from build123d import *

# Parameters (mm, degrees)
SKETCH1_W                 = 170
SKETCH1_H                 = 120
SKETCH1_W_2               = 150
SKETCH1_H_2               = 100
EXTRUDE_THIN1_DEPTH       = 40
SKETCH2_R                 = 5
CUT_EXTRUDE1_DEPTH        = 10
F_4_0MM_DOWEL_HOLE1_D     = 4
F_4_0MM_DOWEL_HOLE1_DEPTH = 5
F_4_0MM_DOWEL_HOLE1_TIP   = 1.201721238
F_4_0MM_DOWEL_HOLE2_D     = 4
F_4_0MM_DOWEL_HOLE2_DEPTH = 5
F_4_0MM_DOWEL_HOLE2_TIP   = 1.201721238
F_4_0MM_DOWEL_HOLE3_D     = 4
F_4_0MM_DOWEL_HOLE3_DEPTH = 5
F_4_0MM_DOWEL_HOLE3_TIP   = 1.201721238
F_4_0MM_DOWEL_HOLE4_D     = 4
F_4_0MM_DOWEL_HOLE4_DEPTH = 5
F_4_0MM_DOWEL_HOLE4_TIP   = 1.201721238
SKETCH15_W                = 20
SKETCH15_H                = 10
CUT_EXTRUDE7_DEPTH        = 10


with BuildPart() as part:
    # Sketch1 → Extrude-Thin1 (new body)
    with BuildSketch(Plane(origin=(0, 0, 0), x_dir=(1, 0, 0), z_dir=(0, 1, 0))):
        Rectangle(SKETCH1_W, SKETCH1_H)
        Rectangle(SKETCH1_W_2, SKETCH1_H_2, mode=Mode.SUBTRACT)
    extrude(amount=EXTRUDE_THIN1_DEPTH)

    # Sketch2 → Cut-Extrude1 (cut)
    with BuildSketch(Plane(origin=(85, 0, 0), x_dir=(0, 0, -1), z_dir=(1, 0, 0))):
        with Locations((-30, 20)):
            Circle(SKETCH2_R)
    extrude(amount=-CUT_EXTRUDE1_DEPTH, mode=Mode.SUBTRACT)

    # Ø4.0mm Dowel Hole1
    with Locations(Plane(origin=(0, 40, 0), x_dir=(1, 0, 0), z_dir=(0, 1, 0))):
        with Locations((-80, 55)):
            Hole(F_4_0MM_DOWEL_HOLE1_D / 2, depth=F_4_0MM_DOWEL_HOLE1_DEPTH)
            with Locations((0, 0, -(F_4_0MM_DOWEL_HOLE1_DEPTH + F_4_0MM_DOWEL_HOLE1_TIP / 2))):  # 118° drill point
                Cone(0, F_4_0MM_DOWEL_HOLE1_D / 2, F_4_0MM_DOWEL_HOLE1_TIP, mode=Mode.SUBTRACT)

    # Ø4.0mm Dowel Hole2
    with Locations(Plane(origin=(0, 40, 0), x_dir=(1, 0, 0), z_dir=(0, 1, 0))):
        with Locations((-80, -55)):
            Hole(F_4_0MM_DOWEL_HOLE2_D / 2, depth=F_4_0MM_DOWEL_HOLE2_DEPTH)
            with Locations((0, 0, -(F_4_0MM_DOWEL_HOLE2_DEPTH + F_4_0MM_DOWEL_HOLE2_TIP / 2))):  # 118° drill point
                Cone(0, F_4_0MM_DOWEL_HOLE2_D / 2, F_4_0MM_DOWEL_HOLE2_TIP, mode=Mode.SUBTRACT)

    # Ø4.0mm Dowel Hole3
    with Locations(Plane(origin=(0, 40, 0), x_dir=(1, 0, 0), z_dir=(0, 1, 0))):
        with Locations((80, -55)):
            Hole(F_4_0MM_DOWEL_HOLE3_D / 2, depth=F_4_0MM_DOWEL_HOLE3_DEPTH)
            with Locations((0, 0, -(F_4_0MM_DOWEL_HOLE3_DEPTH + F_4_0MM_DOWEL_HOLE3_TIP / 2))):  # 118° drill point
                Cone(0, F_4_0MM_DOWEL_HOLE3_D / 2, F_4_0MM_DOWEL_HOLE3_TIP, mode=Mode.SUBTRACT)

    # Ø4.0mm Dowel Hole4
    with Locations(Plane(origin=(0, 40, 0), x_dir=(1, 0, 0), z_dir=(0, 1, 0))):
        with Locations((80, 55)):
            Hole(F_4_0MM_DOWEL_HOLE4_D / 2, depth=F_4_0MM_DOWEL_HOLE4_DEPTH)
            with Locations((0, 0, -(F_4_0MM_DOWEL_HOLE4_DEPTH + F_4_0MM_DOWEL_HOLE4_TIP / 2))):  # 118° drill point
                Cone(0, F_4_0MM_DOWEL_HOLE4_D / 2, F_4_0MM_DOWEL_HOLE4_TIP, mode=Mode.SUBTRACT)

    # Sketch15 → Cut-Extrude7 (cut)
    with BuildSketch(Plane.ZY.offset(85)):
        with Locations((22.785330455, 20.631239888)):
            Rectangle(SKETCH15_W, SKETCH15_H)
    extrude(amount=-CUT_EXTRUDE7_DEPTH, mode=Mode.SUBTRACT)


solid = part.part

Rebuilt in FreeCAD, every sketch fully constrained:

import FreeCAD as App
import Part
import Sketcher
Q = App.Units.Quantity

doc = App.newDocument("Part")
body = doc.addObject("PartDesign::Body", "Body")

# Sketch on XZ plane
sketch1 = doc.addObject("Sketcher::SketchObject", "Sketch")
body.addObject(sketch1)
sketch1.AttachmentSupport = (doc.XZ_Plane, [""])
sketch1.MapMode = "FlatFace"
sketch1.addGeometry([
    Part.LineSegment(App.Vector(-85, -60, 0), App.Vector(-85, 60, 0)),  # 0
    Part.LineSegment(App.Vector(-85, 60, 0), App.Vector(85, 60, 0)),  # 1
    Part.LineSegment(App.Vector(85, 60, 0), App.Vector(85, -60, 0)),  # 2
    Part.LineSegment(App.Vector(85, -60, 0), App.Vector(-85, -60, 0)),  # 3
    Part.LineSegment(App.Vector(75, 50, 0), App.Vector(-75, 50, 0)),  # 4
    Part.LineSegment(App.Vector(-75, 50, 0), App.Vector(-75, -50, 0)),  # 5
    Part.LineSegment(App.Vector(-75, -50, 0), App.Vector(75, -50, 0)),  # 6
    Part.LineSegment(App.Vector(75, -50, 0), App.Vector(75, 50, 0)),  # 7
], False)
sketch1.addConstraint([
    Sketcher.Constraint("Coincident", 0, 2, 1, 1),
    Sketcher.Constraint("Coincident", 1, 2, 2, 1),
    Sketcher.Constraint("Coincident", 2, 2, 3, 1),
    Sketcher.Constraint("Coincident", 3, 2, 0, 1),
    Sketcher.Constraint("Coincident", 4, 2, 5, 1),
    Sketcher.Constraint("Coincident", 5, 2, 6, 1),
    Sketcher.Constraint("Coincident", 6, 2, 7, 1),
    Sketcher.Constraint("Coincident", 7, 2, 4, 1),
    Sketcher.Constraint("Vertical", 0),
    Sketcher.Constraint("Horizontal", 1),
    Sketcher.Constraint("Vertical", 2),
    Sketcher.Constraint("Horizontal", 3),
    Sketcher.Constraint("Horizontal", 4),
    Sketcher.Constraint("Vertical", 5),
    Sketcher.Constraint("Horizontal", 6),
    Sketcher.Constraint("Vertical", 7),
    Sketcher.Constraint("Symmetric", 0, 2, 2, 2, -1, 1),
    Sketcher.Constraint("Symmetric", 4, 2, 6, 2, -1, 1),
    Sketcher.Constraint("DistanceX", 1, 1, 1, 2, Q("170 mm")),
    Sketcher.Constraint("DistanceX", 4, 2, 4, 1, Q("150 mm")),
    Sketcher.Constraint("DistanceY", 0, 1, 0, 2, Q("120 mm")),
    Sketcher.Constraint("DistanceY", 5, 2, 5, 1, Q("100 mm")),
])
pad1 = doc.addObject("PartDesign::Pad", "Pad")
body.addObject(pad1)
pad1.Profile = sketch1
pad1.Length = 40
pad1.Reversed = True

# Sketch on YZ plane
sketch2 = doc.addObject("Sketcher::SketchObject", "Sketch001")
body.addObject(sketch2)
sketch2.AttachmentSupport = (doc.YZ_Plane, [""])
sketch2.MapMode = "FlatFace"
sketch2.AttachmentOffset = App.Placement(App.Vector(0, 0, 85), App.Rotation())
sketch2.addGeometry(Part.Circle(App.Vector(20, 30, 0), App.Vector(0, 0, 1), 5), False)
sketch2.addConstraint([
    Sketcher.Constraint("Diameter", 0, Q("10 mm")),
    Sketcher.Constraint("DistanceX", -1, 1, 0, 3, Q("20 mm")),
    Sketcher.Constraint("DistanceY", -1, 1, 0, 3, Q("30 mm")),
])
pocket1 = doc.addObject("PartDesign::Pocket", "Pocket")
body.addObject(pocket1)
pocket1.Profile = sketch2
pocket1.Length = 10

# Sketch on XZ plane
sketch3 = doc.addObject("Sketcher::SketchObject", "Sketch002")
body.addObject(sketch3)
sketch3.AttachmentSupport = (doc.XZ_Plane, [""])
sketch3.MapMode = "FlatFace"
sketch3.AttachmentOffset = App.Placement(App.Vector(0, 0, -40), App.Rotation())
sketch3.addGeometry(Part.Circle(App.Vector(-80, -55, 0), App.Vector(0, 0, 1), 2), False)
sketch3.addConstraint([
    Sketcher.Constraint("Diameter", 0, Q("4 mm")),
    Sketcher.Constraint("DistanceX", 0, 3, -1, 1, Q("80 mm")),
    Sketcher.Constraint("DistanceY", 0, 3, -1, 1, Q("55 mm")),
])
doc.recompute()
hole = doc.addObject("PartDesign::Hole", "Hole")
body.addObject(hole)
hole.Profile = sketch3
hole.ThreadType = "None"
hole.Diameter = 4
hole.DepthType = "Dimension"
hole.Depth = 5
hole.DrillPoint = "Angled"
hole.DrillPointAngle = 118
hole.Reversed = True

# Sketch on XZ plane
sketch4 = doc.addObject("Sketcher::SketchObject", "Sketch003")
body.addObject(sketch4)
sketch4.AttachmentSupport = (doc.XZ_Plane, [""])
sketch4.MapMode = "FlatFace"
sketch4.AttachmentOffset = App.Placement(App.Vector(0, 0, -40), App.Rotation())
sketch4.addGeometry(Part.Circle(App.Vector(-80, 55, 0), App.Vector(0, 0, 1), 2), False)
sketch4.addConstraint([
    Sketcher.Constraint("Diameter", 0, Q("4 mm")),
    Sketcher.Constraint("DistanceX", 0, 3, -1, 1, Q("80 mm")),
    Sketcher.Constraint("DistanceY", -1, 1, 0, 3, Q("55 mm")),
])
doc.recompute()
hole2 = doc.addObject("PartDesign::Hole", "Hole001")
body.addObject(hole2)
hole2.Profile = sketch4
hole2.ThreadType = "None"
hole2.Diameter = 4
hole2.DepthType = "Dimension"
hole2.Depth = 5
hole2.DrillPoint = "Angled"
hole2.DrillPointAngle = 118
hole2.Reversed = True

# Sketch on XZ plane
sketch5 = doc.addObject("Sketcher::SketchObject", "Sketch004")
body.addObject(sketch5)
sketch5.AttachmentSupport = (doc.XZ_Plane, [""])
sketch5.MapMode = "FlatFace"
sketch5.AttachmentOffset = App.Placement(App.Vector(0, 0, -40), App.Rotation())
sketch5.addGeometry(Part.Circle(App.Vector(80, 55, 0), App.Vector(0, 0, 1), 2), False)
sketch5.addConstraint([
    Sketcher.Constraint("Diameter", 0, Q("4 mm")),
    Sketcher.Constraint("DistanceX", -1, 1, 0, 3, Q("80 mm")),
    Sketcher.Constraint("DistanceY", -1, 1, 0, 3, Q("55 mm")),
])
doc.recompute()
hole3 = doc.addObject("PartDesign::Hole", "Hole002")
body.addObject(hole3)
hole3.Profile = sketch5
hole3.ThreadType = "None"
hole3.Diameter = 4
hole3.DepthType = "Dimension"
hole3.Depth = 5
hole3.DrillPoint = "Angled"
hole3.DrillPointAngle = 118
hole3.Reversed = True

# Sketch on XZ plane
sketch6 = doc.addObject("Sketcher::SketchObject", "Sketch005")
body.addObject(sketch6)
sketch6.AttachmentSupport = (doc.XZ_Plane, [""])
sketch6.MapMode = "FlatFace"
sketch6.AttachmentOffset = App.Placement(App.Vector(0, 0, -40), App.Rotation())
sketch6.addGeometry(Part.Circle(App.Vector(80, -55, 0), App.Vector(0, 0, 1), 2), False)
sketch6.addConstraint([
    Sketcher.Constraint("Diameter", 0, Q("4 mm")),
    Sketcher.Constraint("DistanceX", -1, 1, 0, 3, Q("80 mm")),
    Sketcher.Constraint("DistanceY", 0, 3, -1, 1, Q("55 mm")),
])
doc.recompute()
hole4 = doc.addObject("PartDesign::Hole", "Hole003")
body.addObject(hole4)
hole4.Profile = sketch6
hole4.ThreadType = "None"
hole4.Diameter = 4
hole4.DepthType = "Dimension"
hole4.Depth = 5
hole4.DrillPoint = "Angled"
hole4.DrillPointAngle = 118
hole4.Reversed = True

# Sketch on YZ plane
sketch7 = doc.addObject("Sketcher::SketchObject", "Sketch006")
body.addObject(sketch7)
sketch7.AttachmentSupport = (doc.YZ_Plane, [""])
sketch7.MapMode = "FlatFace"
sketch7.AttachmentOffset = App.Placement(App.Vector(0, 0, -85), App.Rotation())
sketch7.addGeometry([
    Part.LineSegment(App.Vector(26, 13, 0), App.Vector(16, 13, 0)),
    Part.LineSegment(App.Vector(16, 13, 0), App.Vector(16, 33, 0)),
    Part.LineSegment(App.Vector(16, 33, 0), App.Vector(26, 33, 0)),
    Part.LineSegment(App.Vector(26, 33, 0), App.Vector(26, 13, 0)),
], False)
sketch7.addConstraint([
    Sketcher.Constraint("Coincident", 0, 2, 1, 1),
    Sketcher.Constraint("Coincident", 1, 2, 2, 1),
    Sketcher.Constraint("Coincident", 2, 2, 3, 1),
    Sketcher.Constraint("Coincident", 3, 2, 0, 1),
    Sketcher.Constraint("Horizontal", 0),
    Sketcher.Constraint("Vertical", 1),
    Sketcher.Constraint("Horizontal", 2),
    Sketcher.Constraint("Vertical", 3),
    Sketcher.Constraint("DistanceX", 0, 2, 0, 1, Q("10 mm")),
    Sketcher.Constraint("DistanceY", 1, 1, 1, 2, Q("20 mm")),
    Sketcher.Constraint("DistanceX", -1, 1, 0, 2, Q("15.63124 mm")),
    Sketcher.Constraint("DistanceY", -1, 1, 0, 2, Q("12.78533 mm")),
])
pocket2 = doc.addObject("PartDesign::Pocket", "Pocket001")
body.addObject(pocket2)
pocket2.Profile = sketch7
pocket2.Length = 10
pocket2.Reversed = True

doc.recompute()
